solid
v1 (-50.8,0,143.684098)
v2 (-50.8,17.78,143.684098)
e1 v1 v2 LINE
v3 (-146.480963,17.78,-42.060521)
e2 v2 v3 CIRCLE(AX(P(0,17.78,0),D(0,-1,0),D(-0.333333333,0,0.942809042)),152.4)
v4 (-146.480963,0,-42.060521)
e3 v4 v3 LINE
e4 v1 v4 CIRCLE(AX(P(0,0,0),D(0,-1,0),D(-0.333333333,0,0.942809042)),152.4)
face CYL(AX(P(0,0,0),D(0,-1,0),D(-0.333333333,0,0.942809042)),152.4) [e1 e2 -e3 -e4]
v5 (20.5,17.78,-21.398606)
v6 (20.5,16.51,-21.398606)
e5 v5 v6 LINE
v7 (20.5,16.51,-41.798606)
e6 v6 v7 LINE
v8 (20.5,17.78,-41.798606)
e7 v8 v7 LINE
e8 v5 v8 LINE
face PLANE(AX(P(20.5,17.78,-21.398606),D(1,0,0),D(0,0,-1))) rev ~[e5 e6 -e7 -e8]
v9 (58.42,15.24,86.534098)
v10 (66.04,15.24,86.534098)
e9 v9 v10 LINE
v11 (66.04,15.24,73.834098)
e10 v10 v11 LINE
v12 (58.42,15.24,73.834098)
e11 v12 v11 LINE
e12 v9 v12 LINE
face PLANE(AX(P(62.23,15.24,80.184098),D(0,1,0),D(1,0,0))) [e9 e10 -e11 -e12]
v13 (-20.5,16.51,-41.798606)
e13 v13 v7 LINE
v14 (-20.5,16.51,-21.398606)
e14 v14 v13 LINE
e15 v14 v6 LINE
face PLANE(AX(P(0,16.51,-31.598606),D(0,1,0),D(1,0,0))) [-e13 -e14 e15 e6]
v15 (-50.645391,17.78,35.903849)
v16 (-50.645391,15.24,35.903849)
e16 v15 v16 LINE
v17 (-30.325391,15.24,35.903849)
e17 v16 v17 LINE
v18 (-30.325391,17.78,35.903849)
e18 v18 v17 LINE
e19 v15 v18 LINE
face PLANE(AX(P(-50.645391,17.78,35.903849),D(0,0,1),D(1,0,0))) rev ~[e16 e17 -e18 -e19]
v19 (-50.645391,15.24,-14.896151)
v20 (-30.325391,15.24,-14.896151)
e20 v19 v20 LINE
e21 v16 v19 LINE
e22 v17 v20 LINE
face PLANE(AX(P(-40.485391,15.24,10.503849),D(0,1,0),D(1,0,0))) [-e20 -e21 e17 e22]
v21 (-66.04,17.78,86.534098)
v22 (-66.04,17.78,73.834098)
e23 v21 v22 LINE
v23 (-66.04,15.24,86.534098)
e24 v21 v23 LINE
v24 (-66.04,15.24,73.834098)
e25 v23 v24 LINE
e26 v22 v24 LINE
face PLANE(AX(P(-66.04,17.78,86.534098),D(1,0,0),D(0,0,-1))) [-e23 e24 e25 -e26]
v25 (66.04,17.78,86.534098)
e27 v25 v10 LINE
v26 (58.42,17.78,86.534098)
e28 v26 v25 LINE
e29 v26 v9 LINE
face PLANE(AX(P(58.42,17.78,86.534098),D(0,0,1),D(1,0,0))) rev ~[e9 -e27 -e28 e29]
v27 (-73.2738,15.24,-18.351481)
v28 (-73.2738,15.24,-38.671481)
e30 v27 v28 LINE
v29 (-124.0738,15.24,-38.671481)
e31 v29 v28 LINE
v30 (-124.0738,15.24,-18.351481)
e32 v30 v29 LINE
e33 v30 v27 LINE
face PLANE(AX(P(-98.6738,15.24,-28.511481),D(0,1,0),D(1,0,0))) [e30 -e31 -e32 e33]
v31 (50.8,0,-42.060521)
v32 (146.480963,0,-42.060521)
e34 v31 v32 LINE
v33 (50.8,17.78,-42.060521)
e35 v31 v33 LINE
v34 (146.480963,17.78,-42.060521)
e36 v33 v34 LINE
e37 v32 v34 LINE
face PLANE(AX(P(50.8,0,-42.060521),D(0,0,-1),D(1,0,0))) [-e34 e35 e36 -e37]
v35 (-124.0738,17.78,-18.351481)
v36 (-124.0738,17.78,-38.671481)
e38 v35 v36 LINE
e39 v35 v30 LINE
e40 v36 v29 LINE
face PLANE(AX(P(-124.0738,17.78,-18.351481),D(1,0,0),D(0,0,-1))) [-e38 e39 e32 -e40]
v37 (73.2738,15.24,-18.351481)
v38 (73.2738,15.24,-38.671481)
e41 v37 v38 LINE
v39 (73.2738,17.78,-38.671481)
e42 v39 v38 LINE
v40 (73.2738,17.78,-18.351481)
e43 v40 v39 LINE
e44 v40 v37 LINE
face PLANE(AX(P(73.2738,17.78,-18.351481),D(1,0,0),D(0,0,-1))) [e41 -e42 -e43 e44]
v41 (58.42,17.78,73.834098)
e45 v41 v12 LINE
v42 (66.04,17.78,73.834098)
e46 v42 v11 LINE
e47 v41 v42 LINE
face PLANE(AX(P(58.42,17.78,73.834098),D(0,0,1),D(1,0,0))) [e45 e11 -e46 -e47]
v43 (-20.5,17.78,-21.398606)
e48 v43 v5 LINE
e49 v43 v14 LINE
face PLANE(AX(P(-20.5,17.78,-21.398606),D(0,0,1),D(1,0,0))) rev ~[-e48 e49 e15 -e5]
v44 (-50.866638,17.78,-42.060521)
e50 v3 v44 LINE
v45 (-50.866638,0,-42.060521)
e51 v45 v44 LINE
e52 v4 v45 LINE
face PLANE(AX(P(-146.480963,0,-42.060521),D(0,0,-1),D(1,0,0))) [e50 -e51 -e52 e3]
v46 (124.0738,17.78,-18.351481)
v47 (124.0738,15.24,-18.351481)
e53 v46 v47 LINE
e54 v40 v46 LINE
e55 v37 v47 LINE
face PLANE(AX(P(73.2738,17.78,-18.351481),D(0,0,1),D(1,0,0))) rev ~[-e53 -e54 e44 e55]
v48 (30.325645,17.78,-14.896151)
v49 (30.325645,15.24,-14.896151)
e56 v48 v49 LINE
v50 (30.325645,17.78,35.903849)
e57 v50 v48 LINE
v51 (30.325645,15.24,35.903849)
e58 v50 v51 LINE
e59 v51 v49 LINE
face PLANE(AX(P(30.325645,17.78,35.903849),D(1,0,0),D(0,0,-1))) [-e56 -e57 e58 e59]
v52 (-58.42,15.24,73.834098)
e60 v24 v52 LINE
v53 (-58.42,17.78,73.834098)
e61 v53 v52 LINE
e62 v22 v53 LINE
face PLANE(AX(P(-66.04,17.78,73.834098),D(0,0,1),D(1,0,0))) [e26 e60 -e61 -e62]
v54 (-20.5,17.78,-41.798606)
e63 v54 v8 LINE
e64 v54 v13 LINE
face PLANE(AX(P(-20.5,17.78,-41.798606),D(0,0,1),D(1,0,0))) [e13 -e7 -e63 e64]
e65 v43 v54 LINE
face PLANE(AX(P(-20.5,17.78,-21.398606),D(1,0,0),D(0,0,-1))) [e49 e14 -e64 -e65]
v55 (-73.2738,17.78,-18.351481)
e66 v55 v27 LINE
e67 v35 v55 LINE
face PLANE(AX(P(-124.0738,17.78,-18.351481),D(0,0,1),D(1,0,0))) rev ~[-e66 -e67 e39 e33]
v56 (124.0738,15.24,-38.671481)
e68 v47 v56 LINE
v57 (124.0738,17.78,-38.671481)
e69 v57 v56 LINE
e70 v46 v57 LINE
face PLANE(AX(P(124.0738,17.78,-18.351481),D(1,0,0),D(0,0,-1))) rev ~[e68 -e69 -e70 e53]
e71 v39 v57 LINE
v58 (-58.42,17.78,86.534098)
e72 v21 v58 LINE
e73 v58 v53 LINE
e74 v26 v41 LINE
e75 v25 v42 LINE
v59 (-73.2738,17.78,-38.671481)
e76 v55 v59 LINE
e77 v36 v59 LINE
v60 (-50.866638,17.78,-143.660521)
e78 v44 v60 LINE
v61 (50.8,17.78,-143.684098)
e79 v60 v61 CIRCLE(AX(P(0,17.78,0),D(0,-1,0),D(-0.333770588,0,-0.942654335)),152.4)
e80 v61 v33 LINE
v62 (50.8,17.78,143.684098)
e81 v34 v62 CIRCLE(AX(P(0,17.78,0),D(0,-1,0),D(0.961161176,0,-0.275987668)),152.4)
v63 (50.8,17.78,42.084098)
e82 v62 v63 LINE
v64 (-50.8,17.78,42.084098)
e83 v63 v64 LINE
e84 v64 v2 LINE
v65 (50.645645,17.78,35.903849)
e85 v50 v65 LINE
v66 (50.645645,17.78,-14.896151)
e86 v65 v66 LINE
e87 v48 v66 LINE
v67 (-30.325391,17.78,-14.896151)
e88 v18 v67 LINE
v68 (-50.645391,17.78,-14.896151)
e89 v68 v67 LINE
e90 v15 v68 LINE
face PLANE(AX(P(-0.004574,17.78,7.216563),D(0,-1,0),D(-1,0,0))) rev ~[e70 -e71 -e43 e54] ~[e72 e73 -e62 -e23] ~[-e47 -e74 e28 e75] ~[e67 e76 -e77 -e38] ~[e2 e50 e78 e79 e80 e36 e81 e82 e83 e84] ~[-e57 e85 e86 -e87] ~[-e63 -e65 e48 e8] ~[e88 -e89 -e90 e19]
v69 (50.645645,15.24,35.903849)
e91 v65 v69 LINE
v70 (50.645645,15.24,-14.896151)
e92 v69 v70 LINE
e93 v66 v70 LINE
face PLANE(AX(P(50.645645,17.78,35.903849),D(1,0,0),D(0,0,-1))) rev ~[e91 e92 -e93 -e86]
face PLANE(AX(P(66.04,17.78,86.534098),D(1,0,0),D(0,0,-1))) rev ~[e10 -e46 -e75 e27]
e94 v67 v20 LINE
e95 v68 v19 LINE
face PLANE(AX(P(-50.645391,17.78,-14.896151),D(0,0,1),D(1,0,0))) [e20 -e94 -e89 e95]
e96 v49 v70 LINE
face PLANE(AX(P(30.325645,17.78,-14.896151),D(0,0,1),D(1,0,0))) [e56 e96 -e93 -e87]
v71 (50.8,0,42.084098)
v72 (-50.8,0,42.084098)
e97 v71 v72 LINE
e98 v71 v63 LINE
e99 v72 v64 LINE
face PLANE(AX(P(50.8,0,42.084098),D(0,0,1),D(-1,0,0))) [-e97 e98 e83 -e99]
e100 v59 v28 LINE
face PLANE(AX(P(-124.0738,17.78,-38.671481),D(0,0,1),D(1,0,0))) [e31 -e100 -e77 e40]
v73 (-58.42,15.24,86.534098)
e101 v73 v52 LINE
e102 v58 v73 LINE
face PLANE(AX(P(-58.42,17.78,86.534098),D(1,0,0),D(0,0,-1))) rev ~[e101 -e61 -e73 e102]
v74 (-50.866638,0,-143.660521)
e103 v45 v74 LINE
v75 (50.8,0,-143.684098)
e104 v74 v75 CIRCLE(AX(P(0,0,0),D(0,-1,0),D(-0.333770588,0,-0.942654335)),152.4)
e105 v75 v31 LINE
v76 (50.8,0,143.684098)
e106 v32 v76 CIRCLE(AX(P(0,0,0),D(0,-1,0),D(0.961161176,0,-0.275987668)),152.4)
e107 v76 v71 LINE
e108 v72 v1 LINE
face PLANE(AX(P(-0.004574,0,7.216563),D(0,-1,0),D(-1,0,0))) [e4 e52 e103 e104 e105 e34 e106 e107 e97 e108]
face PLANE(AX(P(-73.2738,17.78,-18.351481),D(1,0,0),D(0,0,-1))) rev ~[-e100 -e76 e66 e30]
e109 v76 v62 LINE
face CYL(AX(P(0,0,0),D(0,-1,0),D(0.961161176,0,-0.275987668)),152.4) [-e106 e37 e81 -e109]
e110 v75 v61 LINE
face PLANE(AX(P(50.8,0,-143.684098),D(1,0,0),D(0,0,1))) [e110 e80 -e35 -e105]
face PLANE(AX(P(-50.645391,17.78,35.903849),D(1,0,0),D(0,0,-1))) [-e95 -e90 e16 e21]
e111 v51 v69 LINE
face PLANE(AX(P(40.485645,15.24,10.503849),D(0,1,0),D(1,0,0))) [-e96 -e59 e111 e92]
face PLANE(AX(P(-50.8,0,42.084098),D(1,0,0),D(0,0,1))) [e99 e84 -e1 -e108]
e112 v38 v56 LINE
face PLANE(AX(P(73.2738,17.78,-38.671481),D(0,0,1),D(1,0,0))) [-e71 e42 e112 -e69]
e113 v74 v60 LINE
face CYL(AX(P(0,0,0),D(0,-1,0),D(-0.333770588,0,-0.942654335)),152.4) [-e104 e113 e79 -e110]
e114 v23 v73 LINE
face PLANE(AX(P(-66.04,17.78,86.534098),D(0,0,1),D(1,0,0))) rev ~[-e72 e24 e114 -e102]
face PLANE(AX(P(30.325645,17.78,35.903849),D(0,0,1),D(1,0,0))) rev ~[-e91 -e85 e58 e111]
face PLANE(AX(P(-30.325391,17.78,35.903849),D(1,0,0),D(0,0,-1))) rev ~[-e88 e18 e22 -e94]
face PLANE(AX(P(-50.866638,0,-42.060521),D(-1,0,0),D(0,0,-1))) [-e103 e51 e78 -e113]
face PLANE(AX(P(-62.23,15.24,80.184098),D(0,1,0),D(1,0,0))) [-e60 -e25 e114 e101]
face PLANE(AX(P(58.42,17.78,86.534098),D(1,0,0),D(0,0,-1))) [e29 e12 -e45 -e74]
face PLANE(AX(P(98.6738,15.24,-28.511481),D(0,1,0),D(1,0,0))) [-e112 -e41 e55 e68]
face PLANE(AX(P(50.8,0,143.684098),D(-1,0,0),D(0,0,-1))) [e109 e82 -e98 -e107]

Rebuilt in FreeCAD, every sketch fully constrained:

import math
import FreeCAD as App
import Part
import Sketcher
from FreeCAD import Vector
Q = App.Units.Quantity


def add_polygon(sketch, points):
    """Adds a closed chain of lines whose ends are joined by coincident constraints."""
    first, n = sketch.GeometryCount, len(points)
    for a, b in zip(points, points[1:] + points[:1]):
        sketch.addGeometry(Part.LineSegment(App.Vector(*a, 0), App.Vector(*b, 0)), False)
    for i in range(n):
        sketch.addConstraint(Sketcher.Constraint("Coincident", first + i, 2, first + (i + 1) % n, 1))

doc = App.newDocument("Part")
body = doc.addObject("PartDesign::Body", "Body")

# Sketch on XZ plane
sketch1 = body.newObject("Sketcher::SketchObject", "Sketch")
sketch1.AttachmentSupport = (doc.getObject("XZ_Plane"), [""])
sketch1.MapMode = "FlatFace"
sketch1.addGeometry([
    Part.LineSegment(Vector(-51, 42, 0), Vector(51, 42, 0)),  # 0
    Part.LineSegment(Vector(51, 42, 0), Vector(51, 144, 0)),  # 1
    Part.ArcOfCircle(Part.Circle(Vector(0, 0, 0), Vector(0, 0, 1), 152), math.radians(-16), math.radians(71)),  # 2
    Part.LineSegment(Vector(146, -42, 0), Vector(51, -42, 0)),  # 3
    Part.LineSegment(Vector(51, -42, 0), Vector(51, -144, 0)),  # 4
    Part.ArcOfCircle(Part.Circle(Vector(0, 0, 0), Vector(0, 0, 1), 152), math.radians(-109), math.radians(-71)),  # 5
    Part.LineSegment(Vector(-51, -144, 0), Vector(-51, -42, 0)),  # 6
    Part.LineSegment(Vector(-51, -42, 0), Vector(-146, -42, 0)),  # 7
    Part.ArcOfCircle(Part.Circle(Vector(0, 0, 0), Vector(0, 0, 1), 152), math.radians(109), math.radians(196)),  # 8
    Part.LineSegment(Vector(-51, 144, 0), Vector(-51, 42, 0)),  # 9
], False)
sketch1.addConstraint([
    Sketcher.Constraint("Coincident", 0, 2, 1, 1),
    Sketcher.Constraint("Coincident", 1, 2, 2, 2),
    Sketcher.Constraint("Coincident", 2, 1, 3, 1),
    Sketcher.Constraint("Coincident", 3, 2, 4, 1),
    Sketcher.Constraint("Coincident", 4, 2, 5, 2),
    Sketcher.Constraint("Coincident", 5, 1, 6, 1),
    Sketcher.Constraint("Coincident", 6, 2, 7, 1),
    Sketcher.Constraint("Coincident", 7, 2, 8, 2),
    Sketcher.Constraint("Coincident", 8, 1, 9, 1),
    Sketcher.Constraint("Coincident", 9, 2, 0, 1),
    Sketcher.Constraint("Horizontal", 0),
    Sketcher.Constraint("Vertical", 1),
    Sketcher.Constraint("Horizontal", 3),
    Sketcher.Constraint("Vertical", 4),
    Sketcher.Constraint("Vertical", 6),
    Sketcher.Constraint("Horizontal", 7),
    Sketcher.Constraint("Vertical", 9),
    Sketcher.Constraint("Coincident", 2, 3, -1, 1),
    Sketcher.Constraint("Coincident", 5, 3, -1, 1),
    Sketcher.Constraint("Coincident", 8, 3, -1, 1),
    Sketcher.Constraint("Equal", 2, 5),
    Sketcher.Constraint("Equal", 5, 8),
    Sketcher.Constraint("Horizontal", 3, 2, 6, 2),
    Sketcher.Constraint("Horizontal", 1, 2, 8, 1),
    Sketcher.Constraint("Vertical", 1, 2, 3, 2),
    Sketcher.Constraint("Equal", 0, 1),
    Sketcher.Constraint("Equal", 1, 6),
    Sketcher.Constraint("Radius", 2, Q("6 in")),
    Sketcher.Constraint("DistanceX", 0, 1, 0, 2, Q("4 in")),
    Sketcher.Constraint("DistanceX", 3, 2, 3, 1, Q("95.680963 mm")),
])
pad1 = body.newObject("PartDesign::Pad", "Pad")
pad1.Profile = sketch1
pad1.Length = Q("0.7 in")
pad1.Reversed = True

# Sketch on XZ plane
sketch2 = body.newObject("Sketcher::SketchObject", "Sketch001")
sketch2.AttachmentSupport = (doc.getObject("XZ_Plane"), [""])
sketch2.MapMode = "FlatFace"
sketch2.AttachmentOffset = App.Placement(Vector(0, 0, -0.7 * 25.4), App.Rotation())
add_polygon(sketch2, [(-20, -42), (-20, -21), (20, -21), (20, -42)])  # lines 0-3
sketch2.addConstraint([
    Sketcher.Constraint("Vertical", 0),
    Sketcher.Constraint("Horizontal", 1),
    Sketcher.Constraint("Vertical", 2),
    Sketcher.Constraint("Horizontal", 3),
    Sketcher.Constraint("DistanceX", 1, 1, 1, 2, Q("41 mm")),
    Sketcher.Constraint("DistanceY", 0, 1, 0, 2, Q("20.4 mm")),
    Sketcher.Constraint("DistanceX", 0, 2, -1, 1, Q("20.5 mm")),
    Sketcher.Constraint("DistanceY", 0, 2, -1, 1, Q("21.398606 mm")),
])
pocket1 = body.newObject("PartDesign::Pocket", "Pocket")
pocket1.Profile = sketch2
pocket1.Length = Q("0.05 in")
pocket1.Reversed = True

# Sketch on XZ plane
sketch3 = body.newObject("Sketcher::SketchObject", "Sketch002")
sketch3.AttachmentSupport = (doc.getObject("XZ_Plane"), [""])
sketch3.MapMode = "FlatFace"
sketch3.AttachmentOffset = App.Placement(Vector(0, 0, -0.7 * 25.4), App.Rotation())
add_polygon(sketch3, [(-66, 74), (-66, 87), (-58, 87), (-58, 74)])  # lines 0-3
add_polygon(sketch3, [(58, 74), (58, 87), (66, 87), (66, 74)])  # lines 4-7
sketch3.addConstraint([
    Sketcher.Constraint("Vertical", 0),
    Sketcher.Constraint("Horizontal", 1),
    Sketcher.Constraint("Vertical", 2),
    Sketcher.Constraint("Horizontal", 3),
    Sketcher.Constraint("Vertical", 4),
    Sketcher.Constraint("Horizontal", 5),
    Sketcher.Constraint("Vertical", 6),
    Sketcher.Constraint("Horizontal", 7),
    Sketcher.Constraint("Symmetric", 1, 2, 4, 2, -2),
    Sketcher.Constraint("Symmetric", 3, 2, 6, 2, -2),
    Sketcher.Constraint("DistanceX", 1, 1, 1, 2, Q("0.3 in")),
    Sketcher.Constraint("DistanceY", 0, 1, 0, 2, Q("0.5 in")),
    Sketcher.Constraint("DistanceX", 0, 2, -1, 1, Q("2.6 in")),
    Sketcher.Constraint("DistanceY", -1, 1, 0, 2, Q("86.534098 mm")),
])
pocket2 = body.newObject("PartDesign::Pocket", "Pocket001")
pocket2.Profile = sketch3
pocket2.Length = Q("0.1 in")
pocket2.Reversed = True

# Sketch on XZ plane
sketch4 = body.newObject("Sketcher::SketchObject", "Sketch003")
sketch4.AttachmentSupport = (doc.getObject("XZ_Plane"), [""])
sketch4.MapMode = "FlatFace"
sketch4.AttachmentOffset = App.Placement(Vector(0, 0, -0.7 * 25.4), App.Rotation())
add_polygon(sketch4, [(-124, -39), (-124, -18), (-73, -18), (-73, -39)])  # lines 0-3
add_polygon(sketch4, [(73, -39), (73, -18), (124, -18), (124, -39)])  # lines 4-7
add_polygon(sketch4, [(-51, -15), (-51, 36), (-30, 36), (-30, -15)])  # lines 8-11
add_polygon(sketch4, [(30, -15), (30, 36), (51, 36), (51, -15)])  # lines 12-15
sketch4.addConstraint([
    Sketcher.Constraint("Vertical", 0),
    Sketcher.Constraint("Horizontal", 1),
    Sketcher.Constraint("Vertical", 2),
    Sketcher.Constraint("Horizontal", 3),
    Sketcher.Constraint("Vertical", 4),
    Sketcher.Constraint("Horizontal", 5),
    Sketcher.Constraint("Vertical", 6),
    Sketcher.Constraint("Horizontal", 7),
    Sketcher.Constraint("Vertical", 8),
    Sketcher.Constraint("Horizontal", 9),
    Sketcher.Constraint("Vertical", 10),
    Sketcher.Constraint("Horizontal", 11),
    Sketcher.Constraint("Vertical", 12),
    Sketcher.Constraint("Horizontal", 13),
    Sketcher.Constraint("Vertical", 14),
    Sketcher.Constraint("Horizontal", 15),
    Sketcher.Constraint("Symmetric", 1, 2, 4, 2, -2),
    Sketcher.Constraint("Symmetric", 3, 2, 6, 2, -2),
    Sketcher.Constraint("Horizontal", 9, 2, 12, 2),
    Sketcher.Constraint("Horizontal", 11, 2, 14, 2),
    Sketcher.Constraint("Equal", 11, 13),
    Sketcher.Constraint("Equal", 15, 0),
    Sketcher.Constraint("Equal", 7, 8),
    Sketcher.Constraint("DistanceX", 1, 1, 1, 2, Q("2 in")),
    Sketcher.Constraint("DistanceX", 9, 1, 9, 2, Q("0.8 in")),
    Sketcher.Constraint("DistanceX", 0, 2, -1, 1, Q("124.0738 mm")),
    Sketcher.Constraint("DistanceY", 0, 2, -1, 1, Q("18.351481 mm")),
    Sketcher.Constraint("DistanceX", 8, 2, -1, 1, Q("50.645391 mm")),
    Sketcher.Constraint("DistanceY", -1, 1, 8, 2, Q("35.903849 mm")),
    Sketcher.Constraint("DistanceX", -1, 1, 12, 2, Q("30.325645 mm")),
])
pocket3 = body.newObject("PartDesign::Pocket", "Pocket002")
pocket3.Profile = sketch4
pocket3.Length = Q("0.1 in")
pocket3.Reversed = True

doc.recompute()
